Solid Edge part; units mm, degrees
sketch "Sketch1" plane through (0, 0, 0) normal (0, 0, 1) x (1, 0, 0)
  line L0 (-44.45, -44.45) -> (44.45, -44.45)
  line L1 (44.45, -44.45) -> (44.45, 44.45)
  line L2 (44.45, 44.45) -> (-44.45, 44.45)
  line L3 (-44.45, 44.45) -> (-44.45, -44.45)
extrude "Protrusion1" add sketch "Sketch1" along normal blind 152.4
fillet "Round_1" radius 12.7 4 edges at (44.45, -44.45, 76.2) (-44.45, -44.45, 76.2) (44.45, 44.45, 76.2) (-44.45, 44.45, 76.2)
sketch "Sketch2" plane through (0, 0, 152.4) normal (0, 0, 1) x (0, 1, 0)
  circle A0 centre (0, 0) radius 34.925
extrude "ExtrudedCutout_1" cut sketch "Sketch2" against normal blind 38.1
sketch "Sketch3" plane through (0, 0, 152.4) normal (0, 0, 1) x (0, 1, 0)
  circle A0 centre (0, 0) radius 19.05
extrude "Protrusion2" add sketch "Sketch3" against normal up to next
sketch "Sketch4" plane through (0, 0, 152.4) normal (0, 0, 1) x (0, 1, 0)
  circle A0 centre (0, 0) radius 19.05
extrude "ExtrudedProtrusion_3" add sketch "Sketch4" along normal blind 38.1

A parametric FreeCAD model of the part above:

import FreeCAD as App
import Part
import Sketcher

V = App.Vector
Q = App.Units.Quantity


def edges_at(feature, points):
    """Names of the edges that pass closest to the given points."""
    edges = feature.Shape.Edges
    near = lambda p: min(range(len(edges)), key=lambda i: edges[i].distToShape(Part.Vertex(*p))[0])
    return sorted({f"Edge{near(p) + 1}" for p in points})

doc = App.newDocument("Part")
body = doc.addObject("PartDesign::Body", "Body")

sketch1 = body.newObject("Sketcher::SketchObject", "Sketch")
sketch1.AttachmentSupport = (doc.getObject("XY_Plane"), [""])
sketch1.MapMode = "FlatFace"
sketch1.addGeometry([
    Part.LineSegment(V(-44.45, 44.45, 0), V(-44.45, -44.45, 0)),
    Part.LineSegment(V(-44.45, -44.45, 0), V(44.45, -44.45, 0)),
    Part.LineSegment(V(44.45, -44.45, 0), V(44.45, 44.45, 0)),
    Part.LineSegment(V(44.45, 44.45, 0), V(-44.45, 44.45, 0)),
], False)
sketch1.addConstraint([
    Sketcher.Constraint("Coincident", 0, 2, 1, 1),
    Sketcher.Constraint("Coincident", 1, 2, 2, 1),
    Sketcher.Constraint("Coincident", 2, 2, 3, 1),
    Sketcher.Constraint("Coincident", 3, 2, 0, 1),
    Sketcher.Constraint("Vertical", 0),
    Sketcher.Constraint("Horizontal", 1),
    Sketcher.Constraint("Vertical", 2),
    Sketcher.Constraint("Horizontal", 3),
    Sketcher.Constraint("Symmetric", 0, 2, 2, 2, -1, 1),
    Sketcher.Constraint("Equal", 3, 0),
    Sketcher.Constraint("DistanceX", 1, 1, 1, 2, Q("3.5 in")),
])
pad1 = body.newObject("PartDesign::Pad", "Pad")
pad1.Profile = sketch1
pad1.Length = Q("6 in")
doc.recompute()

fillet = body.newObject("PartDesign::Fillet", "Fillet")
fillet.Base = (pad1, edges_at(pad1, [
    (44.45, -44.45, 76.2),
    (-44.45, -44.45, 76.2),
    (44.45, 44.45, 76.2),
    (-44.45, 44.45, 76.2),
]))
fillet.Radius = Q("0.5 in")

sketch2 = body.newObject("Sketcher::SketchObject", "Sketch001")
sketch2.AttachmentSupport = (doc.getObject("XY_Plane"), [""])
sketch2.MapMode = "FlatFace"
sketch2.AttachmentOffset = App.Placement(V(0, 0, 6 * 25.4), App.Rotation())
sketch2.addGeometry(Part.Circle(V(0, 0, 0), V(0, 0, 1), 34.925), False)
sketch2.addConstraint([
    Sketcher.Constraint("Coincident", 0, 3, -1, 1),
    Sketcher.Constraint("Diameter", 0, Q("2.75 in")),
])
pocket1 = body.newObject("PartDesign::Pocket", "Pocket")
pocket1.Profile = sketch2
pocket1.Length = Q("1.5 in")

sketch3 = body.newObject("Sketcher::SketchObject", "Sketch002")
sketch3.AttachmentSupport = (doc.getObject("XY_Plane"), [""])
sketch3.MapMode = "FlatFace"
sketch3.AttachmentOffset = App.Placement(V(0, 0, 6 * 25.4), App.Rotation())
sketch3.addGeometry(Part.Circle(V(0, 0, 0), V(0, 0, 1), 19.05), False)
sketch3.addConstraint([
    Sketcher.Constraint("Coincident", 0, 3, -1, 1),
    Sketcher.Constraint("Diameter", 0, Q("1.5 in")),
])
pad2 = body.newObject("PartDesign::Pad", "Pad001")
pad2.Profile = sketch3
pad2.Type = "UpToFirst"
pad2.Reversed = True

sketch4 = body.newObject("Sketcher::SketchObject", "Sketch003")
sketch4.AttachmentSupport = (doc.getObject("XY_Plane"), [""])
sketch4.MapMode = "FlatFace"
sketch4.AttachmentOffset = App.Placement(V(0, 0, 6 * 25.4), App.Rotation())
sketch4.addGeometry(Part.Circle(V(0, 0, 0), V(0, 0, 1), 19.05), False)
sketch4.addConstraint([
    Sketcher.Constraint("Coincident", 0, 3, -1, 1),
    Sketcher.Constraint("Diameter", 0, Q("1.5 in")),
])
pad3 = body.newObject("PartDesign::Pad", "Pad002")
pad3.Profile = sketch4
pad3.Length = Q("1.5 in")

doc.recompute()
